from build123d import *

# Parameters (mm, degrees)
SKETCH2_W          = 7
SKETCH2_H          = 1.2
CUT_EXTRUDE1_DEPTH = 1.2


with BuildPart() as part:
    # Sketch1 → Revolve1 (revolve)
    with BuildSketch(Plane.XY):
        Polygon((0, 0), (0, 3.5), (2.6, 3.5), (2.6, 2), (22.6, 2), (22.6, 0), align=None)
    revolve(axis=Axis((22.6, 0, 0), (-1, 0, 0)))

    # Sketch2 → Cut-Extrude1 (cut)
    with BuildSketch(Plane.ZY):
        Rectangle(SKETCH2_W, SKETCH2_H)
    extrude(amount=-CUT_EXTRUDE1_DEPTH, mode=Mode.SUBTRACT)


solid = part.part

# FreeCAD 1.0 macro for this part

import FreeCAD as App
import Part
import Sketcher
Q = App.Units.Quantity

doc = App.newDocument("Part")
params = doc.addObject("Spreadsheet::Sheet", "Params")
for row, (alias, value) in enumerate([
    ("sketch1_width", "20 mm"),
    ("sketch1_height", "2 mm"),
    ("sketch1_width2", "22.6 mm"),
    ("sketch1_height2", "3.5 mm"),
    ("revolution_angle", "360 deg"),
    ("sketch2_height", "7 mm"),
    ("sketch2_width", "1.2 mm"),
    ("pocket1_length", "1.2 mm"),
], start=1):
    params.set(f"A{row}", alias)
    params.set(f"B{row}", "=" + value)
    params.setAlias(f"B{row}", alias)

body = doc.addObject("PartDesign::Body", "Body")

sketch1 = body.newObject("Sketcher::SketchObject", "Sketch")
sketch1.AttachmentSupport = (doc.getObject("XY_Plane"), [""])
sketch1.MapMode = "FlatFace"
sketch1.addGeometry([
    Part.LineSegment(App.Vector(0, 3.5, 0), App.Vector(0, 0, 0)),
    Part.LineSegment(App.Vector(0, 0, 0), App.Vector(22.6, 0, 0)),
    Part.LineSegment(App.Vector(22.6, 0, 0), App.Vector(22.6, 2, 0)),
    Part.LineSegment(App.Vector(22.6, 2, 0), App.Vector(2.6, 2, 0)),
    Part.LineSegment(App.Vector(2.6, 2, 0), App.Vector(2.6, 3.5, 0)),
    Part.LineSegment(App.Vector(2.6, 3.5, 0), App.Vector(0, 3.5, 0)),
], False)
sketch1.addConstraint([
    Sketcher.Constraint("Coincident", 0, 2, 1, 1),
    Sketcher.Constraint("Coincident", 1, 2, 2, 1),
    Sketcher.Constraint("Coincident", 2, 2, 3, 1),
    Sketcher.Constraint("Coincident", 3, 2, 4, 1),
    Sketcher.Constraint("Coincident", 4, 2, 5, 1),
    Sketcher.Constraint("Coincident", 5, 2, 0, 1),
    Sketcher.Constraint("Vertical", 0),
    Sketcher.Constraint("Horizontal", 1),
    Sketcher.Constraint("Vertical", 2),
    Sketcher.Constraint("Horizontal", 3),
    Sketcher.Constraint("Vertical", 4),
    Sketcher.Constraint("Horizontal", 5),
    Sketcher.Constraint("Coincident", 0, 2, -1, 1),
    Sketcher.Constraint("DistanceX", 3, 2, 3, 1, Q("20 mm")),
    Sketcher.Constraint("DistanceY", 2, 1, 2, 2, Q("2 mm")),
    Sketcher.Constraint("DistanceX", 1, 1, 1, 2, Q("22.6 mm")),
    Sketcher.Constraint("DistanceY", 0, 2, 0, 1, Q("3.5 mm")),
])
sketch1.setExpression("Constraints[13]", "Params.sketch1_width")
sketch1.setExpression("Constraints[14]", "Params.sketch1_height")
sketch1.setExpression("Constraints[15]", "Params.sketch1_width2")
sketch1.setExpression("Constraints[16]", "Params.sketch1_height2")
revolution = body.newObject("PartDesign::Revolution", "Revolution")
revolution.Profile = sketch1
revolution.ReferenceAxis = (sketch1, ["H_Axis"])
revolution.setExpression("Angle", "Params.revolution_angle")

sketch2 = body.newObject("Sketcher::SketchObject", "Sketch001")
sketch2.AttachmentSupport = (doc.getObject("YZ_Plane"), [""])
sketch2.MapMode = "FlatFace"
sketch2.addGeometry([
    Part.LineSegment(App.Vector(0.6, -3.5, 0), App.Vector(-0.6, -3.5, 0)),
    Part.LineSegment(App.Vector(-0.6, -3.5, 0), App.Vector(-0.6, 3.5, 0)),
    Part.LineSegment(App.Vector(-0.6, 3.5, 0), App.Vector(0.6, 3.5, 0)),
    Part.LineSegment(App.Vector(0.6, 3.5, 0), App.Vector(0.6, -3.5, 0)),
], False)
sketch2.addConstraint([
    Sketcher.Constraint("Coincident", 0, 2, 1, 1),
    Sketcher.Constraint("Coincident", 1, 2, 2, 1),
    Sketcher.Constraint("Coincident", 2, 2, 3, 1),
    Sketcher.Constraint("Coincident", 3, 2, 0, 1),
    Sketcher.Constraint("Horizontal", 0),
    Sketcher.Constraint("Vertical", 1),
    Sketcher.Constraint("Horizontal", 2),
    Sketcher.Constraint("Vertical", 3),
    Sketcher.Constraint("Symmetric", 0, 2, 2, 2, -1, 1),
    Sketcher.Constraint("DistanceY", 1, 1, 1, 2, Q("7 mm")),
    Sketcher.Constraint("DistanceX", 0, 2, 0, 1, Q("1.2 mm")),
])
sketch2.setExpression("Constraints[9]", "Params.sketch2_height")
sketch2.setExpression("Constraints[10]", "Params.sketch2_width")
pocket1 = body.newObject("PartDesign::Pocket", "Pocket")
pocket1.Profile = sketch2
pocket1.setExpression("Length", "Params.pocket1_length")
pocket1.Reversed = True

doc.recompute()
